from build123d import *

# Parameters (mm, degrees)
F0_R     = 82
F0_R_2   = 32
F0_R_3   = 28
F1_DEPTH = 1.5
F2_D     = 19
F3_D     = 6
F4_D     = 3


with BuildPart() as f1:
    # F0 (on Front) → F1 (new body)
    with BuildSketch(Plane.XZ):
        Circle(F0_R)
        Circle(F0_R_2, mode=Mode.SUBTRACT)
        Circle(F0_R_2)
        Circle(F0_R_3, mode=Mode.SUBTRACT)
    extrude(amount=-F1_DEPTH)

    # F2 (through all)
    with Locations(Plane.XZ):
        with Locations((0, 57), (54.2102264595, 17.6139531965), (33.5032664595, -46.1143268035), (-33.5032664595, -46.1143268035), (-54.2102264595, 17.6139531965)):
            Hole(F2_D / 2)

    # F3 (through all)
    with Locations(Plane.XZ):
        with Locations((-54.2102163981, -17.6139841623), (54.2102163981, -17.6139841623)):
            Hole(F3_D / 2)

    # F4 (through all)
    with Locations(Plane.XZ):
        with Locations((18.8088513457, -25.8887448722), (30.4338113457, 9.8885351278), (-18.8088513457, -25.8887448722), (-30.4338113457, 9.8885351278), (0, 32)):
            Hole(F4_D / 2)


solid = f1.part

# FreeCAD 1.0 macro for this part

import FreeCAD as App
import Part
import Sketcher
from FreeCAD import Vector
Q = App.Units.Quantity

doc = App.newDocument("Part")
body = doc.addObject("PartDesign::Body", "Body")

sketch1 = doc.addObject("Sketcher::SketchObject", "Sketch")
body.addObject(sketch1)
sketch1.AttachmentSupport = (doc.XZ_Plane, [""])
sketch1.MapMode = "FlatFace"
sketch1.addGeometry([
    Part.Circle(Vector(0, 0, 0), Vector(0, 0, 1), 82),
    Part.Circle(Vector(0, 0, 0), Vector(0, 0, 1), 28),
], False)
sketch1.addConstraint([
    Sketcher.Constraint("Coincident", 0, 3, -1, 1),
    Sketcher.Constraint("Coincident", 1, 3, -1, 1),
    Sketcher.Constraint("Diameter", 0, Q("164 mm")),
    Sketcher.Constraint("Diameter", 1, Q("56 mm")),
])
pad1 = doc.addObject("PartDesign::Pad", "Pad")
body.addObject(pad1)
pad1.Profile = sketch1
pad1.Length = 1.5
pad1.Reversed = True

sketch2 = doc.addObject("Sketcher::SketchObject", "Sketch001")
body.addObject(sketch2)
sketch2.AttachmentSupport = (doc.XZ_Plane, [""])
sketch2.MapMode = "FlatFace"
sketch2.addGeometry([
    Part.Circle(Vector(0, 57, 0), Vector(0, 0, 1), 9.5),
    Part.Circle(Vector(54.210226, 17.613953, 0), Vector(0, 0, 1), 9.5),
    Part.Circle(Vector(33.503266, -46.114327, 0), Vector(0, 0, 1), 9.5),
    Part.Circle(Vector(-33.503266, -46.114327, 0), Vector(0, 0, 1), 9.5),
    Part.Circle(Vector(-54.210226, 17.613953, 0), Vector(0, 0, 1), 9.5),
], False)
sketch2.addConstraint([
    Sketcher.Constraint("Equal", 0, 1),
    Sketcher.Constraint("Equal", 1, 2),
    Sketcher.Constraint("Equal", 2, 3),
    Sketcher.Constraint("Equal", 3, 4),
    Sketcher.Constraint("Symmetric", 2, 3, 3, 3, -2),
    Sketcher.Constraint("Symmetric", 1, 3, 4, 3, -2),
    Sketcher.Constraint("PointOnObject", 0, 3, -2),
    Sketcher.Constraint("Diameter", 0, Q("19 mm")),
    Sketcher.Constraint("DistanceY", -1, 1, 0, 3, Q("57 mm")),
    Sketcher.Constraint("DistanceX", 2, 3, 1, 3, Q("20.70696 mm")),
    Sketcher.Constraint("DistanceY", 2, 3, 1, 3, Q("63.72828 mm")),
    Sketcher.Constraint("DistanceX", -1, 1, 1, 3, Q("54.210226 mm")),
    Sketcher.Constraint("DistanceY", -1, 1, 1, 3, Q("17.613953 mm")),
])
doc.recompute()
hole = doc.addObject("PartDesign::Hole", "Hole")
body.addObject(hole)
hole.Profile = sketch2
hole.ThreadType = "None"
hole.Diameter = 19
hole.DepthType = "ThroughAll"

sketch3 = doc.addObject("Sketcher::SketchObject", "Sketch002")
body.addObject(sketch3)
sketch3.AttachmentSupport = (doc.XZ_Plane, [""])
sketch3.MapMode = "FlatFace"
sketch3.addGeometry([
    Part.Circle(Vector(-54.210216, -17.613984, 0), Vector(0, 0, 1), 3),
    Part.Circle(Vector(54.210216, -17.613984, 0), Vector(0, 0, 1), 3),
], False)
sketch3.addConstraint([
    Sketcher.Constraint("Equal", 0, 1),
    Sketcher.Constraint("Symmetric", 0, 3, 1, 3, -2),
    Sketcher.Constraint("Diameter", 0, Q("6 mm")),
    Sketcher.Constraint("DistanceX", 0, 3, -1, 1, Q("54.210216 mm")),
    Sketcher.Constraint("DistanceY", 0, 3, -1, 1, Q("17.613984 mm")),
])
doc.recompute()
hole2 = doc.addObject("PartDesign::Hole", "Hole001")
body.addObject(hole2)
hole2.Profile = sketch3
hole2.ThreadType = "None"
hole2.Diameter = 6
hole2.DepthType = "ThroughAll"

sketch4 = doc.addObject("Sketcher::SketchObject", "Sketch003")
body.addObject(sketch4)
sketch4.AttachmentSupport = (doc.XZ_Plane, [""])
sketch4.MapMode = "FlatFace"
sketch4.addGeometry([
    Part.Circle(Vector(18.808851, -25.888745, 0), Vector(0, 0, 1), 1.5),
    Part.Circle(Vector(30.433811, 9.888535, 0), Vector(0, 0, 1), 1.5),
    Part.Circle(Vector(-18.808851, -25.888745, 0), Vector(0, 0, 1), 1.5),
    Part.Circle(Vector(-30.433811, 9.888535, 0), Vector(0, 0, 1), 1.5),
    Part.Circle(Vector(0, 32, 0), Vector(0, 0, 1), 1.5),
], False)
sketch4.addConstraint([
    Sketcher.Constraint("Equal", 0, 1),
    Sketcher.Constraint("Equal", 1, 2),
    Sketcher.Constraint("Equal", 2, 3),
    Sketcher.Constraint("Equal", 3, 4),
    Sketcher.Constraint("Symmetric", 0, 3, 2, 3, -2),
    Sketcher.Constraint("Symmetric", 1, 3, 3, 3, -2),
    Sketcher.Constraint("PointOnObject", 4, 3, -2),
    Sketcher.Constraint("Diameter", 0, Q("3 mm")),
    Sketcher.Constraint("DistanceY", -1, 1, 4, 3, Q("32 mm")),
    Sketcher.Constraint("DistanceX", -1, 1, 0, 3, Q("18.808851 mm")),
    Sketcher.Constraint("DistanceX", -1, 1, 1, 3, Q("30.433811 mm")),
    Sketcher.Constraint("DistanceY", 0, 3, 1, 3, Q("35.77728 mm")),
    Sketcher.Constraint("DistanceY", 0, 3, -1, 1, Q("25.888745 mm")),
])
doc.recompute()
hole3 = doc.addObject("PartDesign::Hole", "Hole002")
body.addObject(hole3)
hole3.Profile = sketch4
hole3.ThreadType = "None"
hole3.Diameter = 3
hole3.DepthType = "ThroughAll"

doc.recompute()
